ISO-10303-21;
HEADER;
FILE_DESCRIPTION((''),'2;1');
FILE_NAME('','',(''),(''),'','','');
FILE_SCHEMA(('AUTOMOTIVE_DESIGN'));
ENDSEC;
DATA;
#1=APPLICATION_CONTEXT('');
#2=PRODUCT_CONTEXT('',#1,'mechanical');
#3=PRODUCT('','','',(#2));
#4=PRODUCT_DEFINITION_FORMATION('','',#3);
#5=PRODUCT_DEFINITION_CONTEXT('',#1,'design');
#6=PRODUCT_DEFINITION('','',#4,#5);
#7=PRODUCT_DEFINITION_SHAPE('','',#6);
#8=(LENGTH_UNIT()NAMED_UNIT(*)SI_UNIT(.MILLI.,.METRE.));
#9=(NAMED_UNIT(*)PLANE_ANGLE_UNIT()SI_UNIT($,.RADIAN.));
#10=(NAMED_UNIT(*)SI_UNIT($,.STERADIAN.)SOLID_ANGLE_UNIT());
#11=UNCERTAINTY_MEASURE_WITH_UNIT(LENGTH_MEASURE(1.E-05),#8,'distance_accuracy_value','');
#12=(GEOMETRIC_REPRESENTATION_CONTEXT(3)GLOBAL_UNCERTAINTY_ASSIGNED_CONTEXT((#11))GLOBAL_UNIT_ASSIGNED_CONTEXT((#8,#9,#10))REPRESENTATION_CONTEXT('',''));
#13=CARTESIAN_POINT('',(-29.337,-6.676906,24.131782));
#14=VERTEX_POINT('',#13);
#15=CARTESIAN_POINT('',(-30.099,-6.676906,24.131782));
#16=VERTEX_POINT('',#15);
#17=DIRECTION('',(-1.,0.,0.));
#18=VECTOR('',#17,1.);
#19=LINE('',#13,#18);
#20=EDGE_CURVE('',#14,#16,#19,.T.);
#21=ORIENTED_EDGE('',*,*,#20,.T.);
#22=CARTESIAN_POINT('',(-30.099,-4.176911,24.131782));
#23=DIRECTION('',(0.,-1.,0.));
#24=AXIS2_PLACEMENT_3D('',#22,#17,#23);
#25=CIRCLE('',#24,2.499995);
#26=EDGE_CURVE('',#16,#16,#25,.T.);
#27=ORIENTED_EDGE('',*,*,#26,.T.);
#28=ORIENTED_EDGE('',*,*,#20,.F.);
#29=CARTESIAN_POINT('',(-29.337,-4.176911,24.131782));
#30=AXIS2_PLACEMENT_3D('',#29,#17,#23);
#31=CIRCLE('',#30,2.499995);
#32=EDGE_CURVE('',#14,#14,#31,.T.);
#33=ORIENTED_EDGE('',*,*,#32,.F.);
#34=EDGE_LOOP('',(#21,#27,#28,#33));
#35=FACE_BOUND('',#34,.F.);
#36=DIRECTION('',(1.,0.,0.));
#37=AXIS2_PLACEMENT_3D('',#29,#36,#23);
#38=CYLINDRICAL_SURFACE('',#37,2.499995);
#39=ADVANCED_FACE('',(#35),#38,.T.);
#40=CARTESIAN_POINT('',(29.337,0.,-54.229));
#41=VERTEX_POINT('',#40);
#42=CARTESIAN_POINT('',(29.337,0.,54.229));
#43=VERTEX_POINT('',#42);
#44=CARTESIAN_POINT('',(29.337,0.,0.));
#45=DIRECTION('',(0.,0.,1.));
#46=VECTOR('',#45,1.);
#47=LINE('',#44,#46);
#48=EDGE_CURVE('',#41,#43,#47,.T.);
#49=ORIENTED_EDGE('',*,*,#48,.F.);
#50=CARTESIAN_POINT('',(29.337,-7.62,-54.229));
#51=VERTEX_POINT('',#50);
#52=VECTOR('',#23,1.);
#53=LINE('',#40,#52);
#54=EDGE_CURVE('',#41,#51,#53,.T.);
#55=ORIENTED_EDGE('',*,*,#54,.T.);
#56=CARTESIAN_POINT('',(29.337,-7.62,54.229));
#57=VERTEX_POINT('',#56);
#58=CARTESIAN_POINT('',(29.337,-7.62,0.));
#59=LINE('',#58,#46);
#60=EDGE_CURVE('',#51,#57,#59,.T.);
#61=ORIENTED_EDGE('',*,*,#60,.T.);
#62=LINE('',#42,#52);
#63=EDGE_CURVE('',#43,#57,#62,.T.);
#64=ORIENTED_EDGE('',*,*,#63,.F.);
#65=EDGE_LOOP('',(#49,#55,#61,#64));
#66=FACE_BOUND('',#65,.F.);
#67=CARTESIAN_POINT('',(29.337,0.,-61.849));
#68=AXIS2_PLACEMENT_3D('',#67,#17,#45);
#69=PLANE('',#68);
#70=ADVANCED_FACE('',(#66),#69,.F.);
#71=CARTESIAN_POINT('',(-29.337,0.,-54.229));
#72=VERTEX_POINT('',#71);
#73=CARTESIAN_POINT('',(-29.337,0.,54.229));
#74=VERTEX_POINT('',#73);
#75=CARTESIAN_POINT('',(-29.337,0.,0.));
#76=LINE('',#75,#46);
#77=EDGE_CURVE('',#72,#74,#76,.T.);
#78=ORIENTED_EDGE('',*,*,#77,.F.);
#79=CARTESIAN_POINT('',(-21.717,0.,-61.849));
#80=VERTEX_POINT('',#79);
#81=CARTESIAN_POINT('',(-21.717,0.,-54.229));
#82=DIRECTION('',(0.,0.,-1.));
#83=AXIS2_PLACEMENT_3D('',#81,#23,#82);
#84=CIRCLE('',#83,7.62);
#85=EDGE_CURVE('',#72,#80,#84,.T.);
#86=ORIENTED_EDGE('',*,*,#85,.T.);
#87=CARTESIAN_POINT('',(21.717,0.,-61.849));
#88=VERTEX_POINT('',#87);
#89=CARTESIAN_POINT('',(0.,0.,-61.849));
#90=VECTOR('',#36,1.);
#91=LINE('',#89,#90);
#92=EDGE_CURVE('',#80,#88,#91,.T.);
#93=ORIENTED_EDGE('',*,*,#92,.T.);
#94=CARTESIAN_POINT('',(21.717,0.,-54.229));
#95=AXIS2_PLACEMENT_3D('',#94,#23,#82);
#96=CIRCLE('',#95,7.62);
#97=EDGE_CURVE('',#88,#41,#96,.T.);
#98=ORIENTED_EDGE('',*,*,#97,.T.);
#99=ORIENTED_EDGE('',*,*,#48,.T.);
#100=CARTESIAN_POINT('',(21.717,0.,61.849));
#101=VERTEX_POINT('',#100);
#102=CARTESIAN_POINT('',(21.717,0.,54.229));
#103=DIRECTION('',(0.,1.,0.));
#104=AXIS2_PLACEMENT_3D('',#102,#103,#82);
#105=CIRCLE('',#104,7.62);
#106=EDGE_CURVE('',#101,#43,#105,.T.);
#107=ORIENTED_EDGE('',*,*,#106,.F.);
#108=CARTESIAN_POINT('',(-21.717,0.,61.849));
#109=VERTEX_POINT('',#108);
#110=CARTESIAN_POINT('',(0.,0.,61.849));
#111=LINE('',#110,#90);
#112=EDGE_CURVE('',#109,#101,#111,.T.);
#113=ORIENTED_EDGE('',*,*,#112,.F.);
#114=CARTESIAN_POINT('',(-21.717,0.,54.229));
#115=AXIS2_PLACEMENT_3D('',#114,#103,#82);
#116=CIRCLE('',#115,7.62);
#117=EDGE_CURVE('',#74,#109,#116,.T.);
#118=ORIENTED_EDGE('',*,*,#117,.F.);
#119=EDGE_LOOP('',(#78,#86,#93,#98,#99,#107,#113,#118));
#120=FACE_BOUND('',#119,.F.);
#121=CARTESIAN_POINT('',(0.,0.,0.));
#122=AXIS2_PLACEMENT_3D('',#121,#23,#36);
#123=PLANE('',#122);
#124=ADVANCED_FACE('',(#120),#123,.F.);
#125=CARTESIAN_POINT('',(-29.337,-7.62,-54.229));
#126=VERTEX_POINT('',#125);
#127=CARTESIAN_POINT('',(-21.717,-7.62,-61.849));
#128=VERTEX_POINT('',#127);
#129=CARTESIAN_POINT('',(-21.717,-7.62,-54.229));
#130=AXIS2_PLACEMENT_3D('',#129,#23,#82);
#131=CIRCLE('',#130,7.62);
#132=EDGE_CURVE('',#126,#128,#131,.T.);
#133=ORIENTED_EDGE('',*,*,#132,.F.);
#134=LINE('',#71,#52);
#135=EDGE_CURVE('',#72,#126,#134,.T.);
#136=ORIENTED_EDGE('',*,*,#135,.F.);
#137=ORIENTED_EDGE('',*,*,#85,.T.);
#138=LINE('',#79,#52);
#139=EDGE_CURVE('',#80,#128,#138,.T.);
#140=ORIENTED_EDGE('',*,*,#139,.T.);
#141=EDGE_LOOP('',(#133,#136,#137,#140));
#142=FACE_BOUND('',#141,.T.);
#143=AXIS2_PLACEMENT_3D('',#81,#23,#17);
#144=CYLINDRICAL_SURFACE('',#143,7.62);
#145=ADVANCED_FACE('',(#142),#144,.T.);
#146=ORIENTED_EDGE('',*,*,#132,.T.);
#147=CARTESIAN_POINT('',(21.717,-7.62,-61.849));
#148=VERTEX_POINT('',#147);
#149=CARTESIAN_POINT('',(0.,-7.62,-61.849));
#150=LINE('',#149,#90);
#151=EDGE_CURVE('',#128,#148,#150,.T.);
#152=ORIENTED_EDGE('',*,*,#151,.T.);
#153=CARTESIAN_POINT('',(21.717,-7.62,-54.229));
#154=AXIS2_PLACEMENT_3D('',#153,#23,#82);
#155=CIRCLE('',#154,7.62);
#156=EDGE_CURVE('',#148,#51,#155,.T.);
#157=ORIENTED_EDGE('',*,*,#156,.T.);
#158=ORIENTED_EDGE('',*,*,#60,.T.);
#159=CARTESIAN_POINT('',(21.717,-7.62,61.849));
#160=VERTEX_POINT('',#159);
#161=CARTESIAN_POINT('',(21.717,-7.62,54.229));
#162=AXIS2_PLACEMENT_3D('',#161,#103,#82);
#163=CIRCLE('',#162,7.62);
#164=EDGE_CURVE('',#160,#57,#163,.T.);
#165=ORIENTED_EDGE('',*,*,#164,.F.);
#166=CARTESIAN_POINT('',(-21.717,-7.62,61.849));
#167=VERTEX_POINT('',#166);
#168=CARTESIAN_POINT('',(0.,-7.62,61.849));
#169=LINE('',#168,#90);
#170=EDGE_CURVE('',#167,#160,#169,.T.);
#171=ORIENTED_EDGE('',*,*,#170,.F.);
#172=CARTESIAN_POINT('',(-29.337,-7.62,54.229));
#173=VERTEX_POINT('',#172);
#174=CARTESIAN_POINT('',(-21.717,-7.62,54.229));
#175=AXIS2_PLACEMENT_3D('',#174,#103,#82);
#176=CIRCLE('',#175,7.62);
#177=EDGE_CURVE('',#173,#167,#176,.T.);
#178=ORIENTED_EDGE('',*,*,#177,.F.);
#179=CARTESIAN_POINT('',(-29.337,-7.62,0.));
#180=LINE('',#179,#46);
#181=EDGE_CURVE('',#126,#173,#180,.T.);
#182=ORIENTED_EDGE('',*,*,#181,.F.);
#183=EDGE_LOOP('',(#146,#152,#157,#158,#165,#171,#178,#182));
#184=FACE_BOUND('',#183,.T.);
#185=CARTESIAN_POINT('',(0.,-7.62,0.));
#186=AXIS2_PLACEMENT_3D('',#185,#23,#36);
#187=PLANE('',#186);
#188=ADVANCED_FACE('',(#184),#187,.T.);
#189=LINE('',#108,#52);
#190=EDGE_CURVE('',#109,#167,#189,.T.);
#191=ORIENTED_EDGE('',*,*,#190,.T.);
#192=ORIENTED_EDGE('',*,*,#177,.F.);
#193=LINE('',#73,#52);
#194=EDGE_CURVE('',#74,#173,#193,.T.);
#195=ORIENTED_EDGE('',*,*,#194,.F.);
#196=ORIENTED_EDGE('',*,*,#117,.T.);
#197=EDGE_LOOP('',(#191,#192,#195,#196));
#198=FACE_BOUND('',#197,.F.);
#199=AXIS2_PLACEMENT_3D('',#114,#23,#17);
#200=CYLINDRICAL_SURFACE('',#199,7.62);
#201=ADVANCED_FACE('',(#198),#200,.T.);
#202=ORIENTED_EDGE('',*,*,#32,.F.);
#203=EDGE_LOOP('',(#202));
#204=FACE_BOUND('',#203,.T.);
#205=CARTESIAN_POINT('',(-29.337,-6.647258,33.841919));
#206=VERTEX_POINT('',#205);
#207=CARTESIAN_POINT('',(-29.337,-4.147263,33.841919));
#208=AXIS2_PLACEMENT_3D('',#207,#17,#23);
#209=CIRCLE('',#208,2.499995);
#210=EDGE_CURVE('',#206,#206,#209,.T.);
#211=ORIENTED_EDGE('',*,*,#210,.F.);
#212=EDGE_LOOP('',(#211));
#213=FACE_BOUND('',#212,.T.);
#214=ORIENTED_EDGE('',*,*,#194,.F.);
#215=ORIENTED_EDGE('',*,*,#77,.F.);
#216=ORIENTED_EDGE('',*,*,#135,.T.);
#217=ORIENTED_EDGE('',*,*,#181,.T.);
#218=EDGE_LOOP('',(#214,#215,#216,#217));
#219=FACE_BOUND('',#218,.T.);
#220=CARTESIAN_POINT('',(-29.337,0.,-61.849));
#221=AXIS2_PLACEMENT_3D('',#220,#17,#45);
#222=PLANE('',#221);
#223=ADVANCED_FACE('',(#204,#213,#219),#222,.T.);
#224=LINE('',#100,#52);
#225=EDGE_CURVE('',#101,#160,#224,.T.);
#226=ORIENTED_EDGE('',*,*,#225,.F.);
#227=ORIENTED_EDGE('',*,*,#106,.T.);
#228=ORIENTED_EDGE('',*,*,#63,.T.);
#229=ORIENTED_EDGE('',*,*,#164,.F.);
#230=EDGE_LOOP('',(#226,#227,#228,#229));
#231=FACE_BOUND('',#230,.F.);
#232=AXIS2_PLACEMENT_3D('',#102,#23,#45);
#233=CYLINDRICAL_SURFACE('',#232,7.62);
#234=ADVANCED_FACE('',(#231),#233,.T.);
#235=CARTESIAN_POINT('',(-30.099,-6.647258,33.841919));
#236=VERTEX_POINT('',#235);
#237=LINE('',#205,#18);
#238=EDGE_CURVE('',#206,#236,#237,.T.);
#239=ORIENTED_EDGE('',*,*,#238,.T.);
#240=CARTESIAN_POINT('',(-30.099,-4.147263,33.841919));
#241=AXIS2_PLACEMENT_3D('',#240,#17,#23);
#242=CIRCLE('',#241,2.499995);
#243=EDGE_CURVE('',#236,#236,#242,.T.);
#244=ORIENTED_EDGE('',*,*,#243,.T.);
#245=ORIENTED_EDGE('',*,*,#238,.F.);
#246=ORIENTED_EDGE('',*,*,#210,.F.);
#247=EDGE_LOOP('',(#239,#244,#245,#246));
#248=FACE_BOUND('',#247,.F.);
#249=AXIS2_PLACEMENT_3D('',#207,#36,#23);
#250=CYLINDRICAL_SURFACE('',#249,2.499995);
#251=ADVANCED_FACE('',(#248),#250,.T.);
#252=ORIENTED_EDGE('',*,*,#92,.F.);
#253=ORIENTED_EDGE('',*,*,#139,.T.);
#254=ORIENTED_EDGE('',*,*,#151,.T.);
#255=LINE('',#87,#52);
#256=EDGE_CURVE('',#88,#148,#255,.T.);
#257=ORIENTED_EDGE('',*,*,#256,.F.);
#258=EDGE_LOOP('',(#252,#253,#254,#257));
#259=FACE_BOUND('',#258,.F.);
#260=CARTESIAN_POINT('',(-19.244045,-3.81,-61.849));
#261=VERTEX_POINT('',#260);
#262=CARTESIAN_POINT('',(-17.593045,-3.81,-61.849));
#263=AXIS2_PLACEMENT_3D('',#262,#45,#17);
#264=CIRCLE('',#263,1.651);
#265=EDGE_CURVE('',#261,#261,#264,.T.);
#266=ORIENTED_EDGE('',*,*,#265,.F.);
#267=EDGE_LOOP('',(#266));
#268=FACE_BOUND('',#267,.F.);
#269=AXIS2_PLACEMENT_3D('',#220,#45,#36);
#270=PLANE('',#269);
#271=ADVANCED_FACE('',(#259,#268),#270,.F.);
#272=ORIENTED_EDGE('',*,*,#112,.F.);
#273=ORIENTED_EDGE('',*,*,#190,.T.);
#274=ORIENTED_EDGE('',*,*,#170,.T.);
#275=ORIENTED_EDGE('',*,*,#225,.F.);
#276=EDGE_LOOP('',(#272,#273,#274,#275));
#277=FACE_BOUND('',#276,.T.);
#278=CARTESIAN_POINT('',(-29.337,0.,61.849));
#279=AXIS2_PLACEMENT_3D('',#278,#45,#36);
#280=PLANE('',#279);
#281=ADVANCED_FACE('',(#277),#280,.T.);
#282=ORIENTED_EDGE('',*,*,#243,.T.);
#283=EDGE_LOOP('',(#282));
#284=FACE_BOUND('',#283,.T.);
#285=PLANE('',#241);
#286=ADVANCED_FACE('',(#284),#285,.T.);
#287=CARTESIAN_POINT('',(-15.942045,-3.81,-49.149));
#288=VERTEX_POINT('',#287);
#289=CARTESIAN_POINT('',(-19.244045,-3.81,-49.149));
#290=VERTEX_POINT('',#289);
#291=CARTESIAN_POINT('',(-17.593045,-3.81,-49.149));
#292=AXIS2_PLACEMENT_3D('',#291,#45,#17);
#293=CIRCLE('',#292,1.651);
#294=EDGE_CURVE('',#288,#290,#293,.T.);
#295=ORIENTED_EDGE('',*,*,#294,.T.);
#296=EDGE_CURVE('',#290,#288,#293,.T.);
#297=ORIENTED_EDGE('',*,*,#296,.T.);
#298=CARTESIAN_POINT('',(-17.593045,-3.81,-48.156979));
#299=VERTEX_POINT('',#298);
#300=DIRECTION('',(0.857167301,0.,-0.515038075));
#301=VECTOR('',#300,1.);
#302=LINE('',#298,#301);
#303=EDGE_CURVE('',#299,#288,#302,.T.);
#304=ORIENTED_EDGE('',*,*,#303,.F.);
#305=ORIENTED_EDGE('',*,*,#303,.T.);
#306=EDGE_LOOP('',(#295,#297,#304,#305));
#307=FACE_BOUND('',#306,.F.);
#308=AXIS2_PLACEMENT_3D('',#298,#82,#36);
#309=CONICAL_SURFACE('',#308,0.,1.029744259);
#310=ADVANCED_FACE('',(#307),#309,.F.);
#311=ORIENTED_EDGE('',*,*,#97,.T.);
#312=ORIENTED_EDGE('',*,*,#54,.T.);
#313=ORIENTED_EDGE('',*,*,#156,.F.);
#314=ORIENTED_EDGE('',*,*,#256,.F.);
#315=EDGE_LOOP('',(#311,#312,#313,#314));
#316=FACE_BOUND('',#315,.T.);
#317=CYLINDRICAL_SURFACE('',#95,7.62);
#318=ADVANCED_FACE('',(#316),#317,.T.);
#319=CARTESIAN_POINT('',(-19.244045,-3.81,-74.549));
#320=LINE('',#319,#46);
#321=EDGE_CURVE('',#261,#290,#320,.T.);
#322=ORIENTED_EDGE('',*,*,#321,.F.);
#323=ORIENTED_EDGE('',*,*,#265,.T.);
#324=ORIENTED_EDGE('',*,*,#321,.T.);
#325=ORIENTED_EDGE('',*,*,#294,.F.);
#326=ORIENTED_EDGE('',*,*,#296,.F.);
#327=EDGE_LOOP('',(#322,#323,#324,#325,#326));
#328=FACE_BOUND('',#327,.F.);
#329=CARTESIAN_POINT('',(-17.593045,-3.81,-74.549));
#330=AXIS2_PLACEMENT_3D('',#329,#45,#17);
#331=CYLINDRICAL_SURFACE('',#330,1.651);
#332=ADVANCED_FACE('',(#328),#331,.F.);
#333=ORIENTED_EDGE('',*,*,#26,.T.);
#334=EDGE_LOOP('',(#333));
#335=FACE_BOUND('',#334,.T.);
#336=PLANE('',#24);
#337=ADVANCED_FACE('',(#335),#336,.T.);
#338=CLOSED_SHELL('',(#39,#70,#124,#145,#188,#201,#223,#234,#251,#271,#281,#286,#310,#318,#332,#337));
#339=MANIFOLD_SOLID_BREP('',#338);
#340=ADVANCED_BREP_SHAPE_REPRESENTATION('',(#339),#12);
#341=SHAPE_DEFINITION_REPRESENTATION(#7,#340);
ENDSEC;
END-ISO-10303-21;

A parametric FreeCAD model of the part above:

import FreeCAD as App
import Part
import Sketcher

V = App.Vector
Q = App.Units.Quantity


def edges_at(feature, points):
    """Names of the edges that pass closest to the given points."""
    edges = feature.Shape.Edges
    near = lambda p: min(range(len(edges)), key=lambda i: edges[i].distToShape(Part.Vertex(*p))[0])
    return sorted({f"Edge{near(p) + 1}" for p in points})


def add_polygon(sketch, points):
    """Adds a closed chain of lines whose ends are joined by coincident constraints."""
    first, n = sketch.GeometryCount, len(points)
    for a, b in zip(points, points[1:] + points[:1]):
        sketch.addGeometry(Part.LineSegment(App.Vector(*a, 0), App.Vector(*b, 0)), False)
    for i in range(n):
        sketch.addConstraint(Sketcher.Constraint("Coincident", first + i, 2, first + (i + 1) % n, 1))

doc = App.newDocument("Part")
body = doc.addObject("PartDesign::Body", "Body")

# Sketch on XZ plane
sketch1 = doc.addObject("Sketcher::SketchObject", "Sketch")
body.addObject(sketch1)
sketch1.AttachmentSupport = (doc.XZ_Plane, [""])
sketch1.MapMode = "FlatFace"
add_polygon(sketch1, [(-29.337, 61.849), (-29.337, -61.849), (29.337, -61.849), (29.337, 61.849)])  # lines 0-3
add_polygon(sketch1, [(25.799999, -45.125), (-25.799999, -45.125), (-25.799999, 45.125), (25.799999, 45.125)])  # lines 4-7
sketch1.addConstraint([
    Sketcher.Constraint("Vertical", 0),
    Sketcher.Constraint("Horizontal", 1),
    Sketcher.Constraint("Vertical", 2),
    Sketcher.Constraint("Horizontal", 3),
    Sketcher.Constraint("Horizontal", 4),
    Sketcher.Constraint("Vertical", 5),
    Sketcher.Constraint("Horizontal", 6),
    Sketcher.Constraint("Vertical", 7),
    Sketcher.Constraint("Symmetric", 0, 2, 2, 2, -1, 1),
    Sketcher.Constraint("Symmetric", 4, 2, 6, 2, -1, 1),
    Sketcher.Constraint("DistanceX", 1, 1, 1, 2, Q("2.31 in")),
    Sketcher.Constraint("DistanceY", 0, 2, 0, 1, Q("4.87 in")),
    Sketcher.Constraint("DistanceX", 4, 2, 4, 1, Q("51.599998 mm")),
    Sketcher.Constraint("DistanceY", 5, 1, 5, 2, Q("90.25 mm")),
])
pad1 = doc.addObject("PartDesign::Pad", "Pad")
body.addObject(pad1)
pad1.Profile = sketch1
pad1.Length = Q("0.3 in")

# Sketch on XZ plane
sketch2 = doc.addObject("Sketcher::SketchObject", "Sketch001")
body.addObject(sketch2)
sketch2.AttachmentSupport = (doc.XZ_Plane, [""])
sketch2.MapMode = "FlatFace"
add_polygon(sketch2, [(-25.799999, 45.125), (-25.799999, -45.125), (25.799999, -45.125), (25.799999, 45.125)])  # lines 0-3
sketch2.addConstraint([
    Sketcher.Constraint("Vertical", 0),
    Sketcher.Constraint("Horizontal", 1),
    Sketcher.Constraint("Vertical", 2),
    Sketcher.Constraint("Horizontal", 3),
    Sketcher.Constraint("Symmetric", 0, 2, 2, 2, -1, 1),
    Sketcher.Constraint("DistanceX", 1, 1, 1, 2, Q("51.599998 mm")),
    Sketcher.Constraint("DistanceY", 0, 2, 0, 1, Q("90.25 mm")),
])
pad2 = doc.addObject("PartDesign::Pad", "Pad001")
body.addObject(pad2)
pad2.Profile = sketch2
pad2.Length = Q("0.3 in")
doc.recompute()

fillet = doc.addObject("PartDesign::Fillet", "Fillet")
body.addObject(fillet)
fillet.Base = (pad2, edges_at(pad2, [
    (29.337, -3.81, 61.849),
    (29.337, -3.81, -61.849),
    (-29.337, -3.81, -61.849),
    (-29.337, -3.81, 61.849),
]))
fillet.Radius = Q("0.3 in")

# Sketch on YZ plane
sketch3 = doc.addObject("Sketcher::SketchObject", "Sketch002")
body.addObject(sketch3)
sketch3.AttachmentSupport = (doc.YZ_Plane, [""])
sketch3.MapMode = "FlatFace"
sketch3.AttachmentOffset = App.Placement(V(0, 0, -1.155 * 25.4), App.Rotation())
sketch3.addGeometry(Part.Circle(V(-4.176911, 24.131782, 0), V(0, 0, 1), 2.499995), False)
sketch3.addConstraint([
    Sketcher.Constraint("Diameter", 0, Q("4.99999 mm")),
    Sketcher.Constraint("DistanceX", 0, 3, -1, 1, Q("4.176911 mm")),
    Sketcher.Constraint("DistanceY", -1, 1, 0, 3, Q("24.131782 mm")),
])
pad3 = doc.addObject("PartDesign::Pad", "Pad002")
body.addObject(pad3)
pad3.Profile = sketch3
pad3.Length = Q("0.03 in")
pad3.Reversed = True

# Sketch on YZ plane
sketch4 = doc.addObject("Sketcher::SketchObject", "Sketch003")
body.addObject(sketch4)
sketch4.AttachmentSupport = (doc.YZ_Plane, [""])
sketch4.MapMode = "FlatFace"
sketch4.AttachmentOffset = App.Placement(V(0, 0, -1.155 * 25.4), App.Rotation())
sketch4.addGeometry(Part.Circle(V(-4.147263, 33.841919, 0), V(0, 0, 1), 2.499995), False)
sketch4.addConstraint([
    Sketcher.Constraint("Diameter", 0, Q("4.99999 mm")),
    Sketcher.Constraint("DistanceY", -1, 1, 0, 3, Q("33.841919 mm")),
    Sketcher.Constraint("DistanceX", 0, 3, -1, 1, Q("4.147263 mm")),
])
pad4 = doc.addObject("PartDesign::Pad", "Pad003")
body.addObject(pad4)
pad4.Profile = sketch4
pad4.Length = Q("0.03 in")
pad4.Reversed = True

# Sketch on YZ plane
sketch5 = doc.addObject("Sketcher::SketchObject", "Sketch004")
body.addObject(sketch5)
sketch5.AttachmentSupport = (doc.YZ_Plane, [""])
sketch5.MapMode = "FlatFace"
sketch5.AttachmentOffset = App.Placement(V(0, 0, -1.155 * 25.4), App.Rotation())
add_polygon(sketch5, [(-2.3822, 50.245274), (-2.3822, 42.166289), (-5.888012, 42.166289), (-5.888012, 50.245274)])  # lines 0-3
sketch5.addConstraint([
    Sketcher.Constraint("Vertical", 0),
    Sketcher.Constraint("Horizontal", 1),
    Sketcher.Constraint("Vertical", 2),
    Sketcher.Constraint("Horizontal", 3),
    Sketcher.Constraint("DistanceX", 0, 2, -1, 1, Q("2.3822 mm")),
    Sketcher.Constraint("DistanceX", 1, 2, 1, 1, Q("3.505812 mm")),
    Sketcher.Constraint("DistanceY", 0, 2, 0, 1, Q("8.078985 mm")),
    Sketcher.Constraint("DistanceY", -1, 1, 0, 2, Q("42.166289 mm")),
])
pad5 = doc.addObject("PartDesign::Pad", "Pad004")
body.addObject(pad5)
pad5.Profile = sketch5
pad5.Length = Q("0.1 in")

# Sketch on XY plane
sketch6 = doc.addObject("Sketcher::SketchObject", "Sketch005")
body.addObject(sketch6)
sketch6.AttachmentSupport = (doc.XY_Plane, [""])
sketch6.MapMode = "FlatFace"
sketch6.AttachmentOffset = App.Placement(V(0, 0, -2.435 * 25.4), App.Rotation())
sketch6.addGeometry(Part.Circle(V(-17.593045, -3.81, 0), V(0, 0, 1), 1.867115), False)
sketch6.addConstraint([
    Sketcher.Constraint("DistanceY", 0, 3, -1, 1, Q("0.15 in")),
    Sketcher.Constraint("Diameter", 0, Q("3.73423 mm")),
    Sketcher.Constraint("DistanceX", 0, 3, -1, 1, Q("17.593045 mm")),
])
pad6 = doc.addObject("PartDesign::Pad", "Pad005")
body.addObject(pad6)
pad6.Profile = sketch6
pad6.Length = Q("0.45 in")

# Sketch on XY plane
sketch7 = doc.addObject("Sketcher::SketchObject", "Sketch006")
body.addObject(sketch7)
sketch7.AttachmentSupport = (doc.XY_Plane, [""])
sketch7.MapMode = "FlatFace"
sketch7.AttachmentOffset = App.Placement(V(0, 0, -2.435 * 25.4), App.Rotation())
sketch7.addGeometry(Part.Circle(V(-17.593045, -3.81, 0), V(0, 0, 1), 1.651), False)
sketch7.addConstraint([
    Sketcher.Constraint("Diameter", 0, Q("0.13 in")),
    Sketcher.Constraint("DistanceY", 0, 3, -1, 1, Q("0.15 in")),
    Sketcher.Constraint("DistanceX", 0, 3, -1, 1, Q("17.593045 mm")),
])
doc.recompute()
hole = doc.addObject("PartDesign::Hole", "Hole")
body.addObject(hole)
hole.Profile = sketch7
hole.ThreadType = "None"
hole.Diameter = Q("0.13 in")
hole.DepthType = "Dimension"
hole.Depth = Q("0.5 in")
hole.DrillPoint = "Angled"
hole.DrillPointAngle = 118
hole.Reversed = True

doc.recompute()
